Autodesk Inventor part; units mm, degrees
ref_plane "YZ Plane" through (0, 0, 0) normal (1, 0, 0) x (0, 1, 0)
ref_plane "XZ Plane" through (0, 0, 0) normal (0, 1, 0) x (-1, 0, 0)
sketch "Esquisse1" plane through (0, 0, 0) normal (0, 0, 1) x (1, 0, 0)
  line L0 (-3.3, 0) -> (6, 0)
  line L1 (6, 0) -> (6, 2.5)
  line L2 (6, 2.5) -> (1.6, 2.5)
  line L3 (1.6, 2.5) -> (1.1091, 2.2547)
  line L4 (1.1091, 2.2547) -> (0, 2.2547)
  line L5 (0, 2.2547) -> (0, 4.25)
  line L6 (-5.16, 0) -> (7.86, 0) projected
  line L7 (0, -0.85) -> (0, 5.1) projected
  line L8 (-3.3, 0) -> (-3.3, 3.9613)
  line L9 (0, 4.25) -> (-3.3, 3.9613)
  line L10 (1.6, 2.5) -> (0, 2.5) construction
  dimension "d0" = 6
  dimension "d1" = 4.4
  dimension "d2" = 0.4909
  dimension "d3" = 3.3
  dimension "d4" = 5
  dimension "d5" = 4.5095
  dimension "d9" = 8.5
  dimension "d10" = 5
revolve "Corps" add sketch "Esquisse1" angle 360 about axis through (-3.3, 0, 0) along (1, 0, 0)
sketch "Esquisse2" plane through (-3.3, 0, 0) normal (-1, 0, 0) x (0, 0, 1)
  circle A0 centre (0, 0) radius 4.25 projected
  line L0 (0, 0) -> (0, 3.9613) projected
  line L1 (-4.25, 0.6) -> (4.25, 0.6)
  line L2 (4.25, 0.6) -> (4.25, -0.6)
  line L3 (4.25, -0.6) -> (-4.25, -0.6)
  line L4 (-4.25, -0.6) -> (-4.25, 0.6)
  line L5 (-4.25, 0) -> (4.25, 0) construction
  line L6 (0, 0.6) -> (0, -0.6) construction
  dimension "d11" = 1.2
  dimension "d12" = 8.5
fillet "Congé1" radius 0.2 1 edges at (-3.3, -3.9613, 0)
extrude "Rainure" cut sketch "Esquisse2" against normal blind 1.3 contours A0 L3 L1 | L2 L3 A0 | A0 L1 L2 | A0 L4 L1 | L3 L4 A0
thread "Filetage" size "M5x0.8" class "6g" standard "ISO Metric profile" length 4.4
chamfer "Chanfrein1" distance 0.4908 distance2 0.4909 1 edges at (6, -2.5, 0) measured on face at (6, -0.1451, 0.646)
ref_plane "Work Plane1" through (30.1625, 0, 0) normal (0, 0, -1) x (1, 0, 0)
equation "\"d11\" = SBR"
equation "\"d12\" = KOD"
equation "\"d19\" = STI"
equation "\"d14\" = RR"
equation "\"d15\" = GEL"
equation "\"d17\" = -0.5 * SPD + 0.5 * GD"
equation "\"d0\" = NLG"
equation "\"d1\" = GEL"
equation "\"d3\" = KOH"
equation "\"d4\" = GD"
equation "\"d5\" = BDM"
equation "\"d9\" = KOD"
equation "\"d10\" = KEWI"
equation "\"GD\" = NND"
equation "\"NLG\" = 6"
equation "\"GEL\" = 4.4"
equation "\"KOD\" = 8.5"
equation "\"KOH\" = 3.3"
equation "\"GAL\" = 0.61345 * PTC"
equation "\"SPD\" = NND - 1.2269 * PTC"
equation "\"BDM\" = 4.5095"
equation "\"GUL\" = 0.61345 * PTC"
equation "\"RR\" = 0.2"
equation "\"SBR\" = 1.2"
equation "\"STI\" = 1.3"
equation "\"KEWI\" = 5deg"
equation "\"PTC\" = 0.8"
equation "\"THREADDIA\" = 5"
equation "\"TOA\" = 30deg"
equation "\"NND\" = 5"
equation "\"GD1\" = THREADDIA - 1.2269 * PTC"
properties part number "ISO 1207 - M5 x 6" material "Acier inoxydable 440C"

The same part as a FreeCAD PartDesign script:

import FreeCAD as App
import Part
import Sketcher
Q = App.Units.Quantity


def edges_at(feature, points):
    """Names of the edges that pass closest to the given points."""
    edges = feature.Shape.Edges
    near = lambda p: min(range(len(edges)), key=lambda i: edges[i].distToShape(Part.Vertex(*p))[0])
    return sorted({f"Edge{near(p) + 1}" for p in points})

doc = App.newDocument("Part")
params = doc.addObject("Spreadsheet::Sheet", "Params")
for row, (alias, value) in enumerate([
    ("sketch1_width", "4.4 mm"),
    ("sketch1_height", "2.5 mm"),
    ("revolution_angle", "360 deg"),
    ("fillet_radius", "0.2 mm"),
    ("sketch2_width", "1.2 mm"),
    ("sketch2_height", "8.5 mm"),
    ("pocket1_length", "1.3 mm"),
    ("chamfer_size", "0.4908 mm"),
    ("chamfer_size2", "0.4909 mm"),
], start=1):
    params.set(f"A{row}", alias)
    params.set(f"B{row}", "=" + value)
    params.setAlias(f"B{row}", alias)

body = doc.addObject("PartDesign::Body", "Body")

# Sketch on XY plane
sketch1 = body.newObject("Sketcher::SketchObject", "Sketch")
sketch1.AttachmentSupport = (doc.getObject("XY_Plane"), [""])
sketch1.MapMode = "FlatFace"
sketch1.addGeometry([
    Part.LineSegment(App.Vector(-3.3, 4, 0), App.Vector(-3.3, 0, 0)),  # 0
    Part.LineSegment(App.Vector(-3.3, 0, 0), App.Vector(6, 0, 0)),  # 1
    Part.LineSegment(App.Vector(6, 0, 0), App.Vector(6, 2.5, 0)),  # 2
    Part.LineSegment(App.Vector(6, 2.5, 0), App.Vector(1.6, 2.5, 0)),  # 3
    Part.LineSegment(App.Vector(1.6, 2.5, 0), App.Vector(1.1, 2.3, 0)),  # 4
    Part.LineSegment(App.Vector(1.1, 2.3, 0), App.Vector(0, 2.3, 0)),  # 5
    Part.LineSegment(App.Vector(0, 2.3, 0), App.Vector(0, 4.2, 0)),  # 6
    Part.LineSegment(App.Vector(0, 4.2, 0), App.Vector(-3.3, 4, 0)),  # 7
], False)
sketch1.addConstraint([
    Sketcher.Constraint("Coincident", 0, 2, 1, 1),
    Sketcher.Constraint("Coincident", 1, 2, 2, 1),
    Sketcher.Constraint("Coincident", 2, 2, 3, 1),
    Sketcher.Constraint("Coincident", 3, 2, 4, 1),
    Sketcher.Constraint("Coincident", 4, 2, 5, 1),
    Sketcher.Constraint("Coincident", 5, 2, 6, 1),
    Sketcher.Constraint("Coincident", 6, 2, 7, 1),
    Sketcher.Constraint("Coincident", 7, 2, 0, 1),
    Sketcher.Constraint("Vertical", 0),
    Sketcher.Constraint("Horizontal", 1),
    Sketcher.Constraint("Vertical", 2),
    Sketcher.Constraint("Horizontal", 3),
    Sketcher.Constraint("Horizontal", 5),
    Sketcher.Constraint("Vertical", 6),
    Sketcher.Constraint("PointOnObject", 0, 2, -1),
    Sketcher.Constraint("PointOnObject", 5, 2, -2),
    Sketcher.Constraint("DistanceX", 3, 2, 3, 1, Q("4.4 mm")),
    Sketcher.Constraint("DistanceX", -1, 1, 1, 2, Q("6 mm")),
    Sketcher.Constraint("DistanceX", 0, 2, -1, 1, Q("3.3 mm")),
    Sketcher.Constraint("Angle", 7, Q("-175.0002 deg")),
    Sketcher.Constraint("DistanceY", 2, 1, 2, 2, Q("2.5 mm")),
    Sketcher.Constraint("DistanceX", 4, 2, 3, 2, Q("0.491 mm")),
    Sketcher.Constraint("Angle", 4, Q("-153.449 deg")),
    Sketcher.Constraint("DistanceY", -1, 1, 6, 2, Q("4.25 mm")),
])
sketch1.setExpression("Constraints[16]", "Params.sketch1_width")
sketch1.setExpression("Constraints[20]", "Params.sketch1_height")
revolution = body.newObject("PartDesign::Revolution", "Revolution")
revolution.Profile = sketch1
revolution.ReferenceAxis = (sketch1, ["H_Axis"])
revolution.setExpression("Angle", "Params.revolution_angle")
doc.recompute()

fillet = body.newObject("PartDesign::Fillet", "Fillet")
fillet.Base = (revolution, edges_at(revolution, [(-3.3, -3.961, 0)]))
fillet.setExpression("Radius", "Params.fillet_radius")

# Sketch on YZ plane
sketch2 = body.newObject("Sketcher::SketchObject", "Sketch001")
sketch2.AttachmentSupport = (doc.getObject("YZ_Plane"), [""])
sketch2.MapMode = "FlatFace"
sketch2.AttachmentOffset = App.Placement(App.Vector(0, 0, -3.3), App.Rotation())
sketch2.addGeometry([
    Part.LineSegment(App.Vector(-0.6, 4.2, 0), App.Vector(0.6, 4.2, 0)),
    Part.LineSegment(App.Vector(0.6, 4.2, 0), App.Vector(0.6, -4.2, 0)),
    Part.LineSegment(App.Vector(0.6, -4.2, 0), App.Vector(-0.6, -4.2, 0)),
    Part.LineSegment(App.Vector(-0.6, -4.2, 0), App.Vector(-0.6, 4.2, 0)),
], False)
sketch2.addConstraint([
    Sketcher.Constraint("Coincident", 0, 2, 1, 1),
    Sketcher.Constraint("Coincident", 1, 2, 2, 1),
    Sketcher.Constraint("Coincident", 2, 2, 3, 1),
    Sketcher.Constraint("Coincident", 3, 2, 0, 1),
    Sketcher.Constraint("Horizontal", 0),
    Sketcher.Constraint("Vertical", 1),
    Sketcher.Constraint("Horizontal", 2),
    Sketcher.Constraint("Vertical", 3),
    Sketcher.Constraint("Symmetric", 0, 2, 2, 2, -1, 1),
    Sketcher.Constraint("DistanceX", 0, 1, 0, 2, Q("1.2 mm")),
    Sketcher.Constraint("DistanceY", 1, 2, 1, 1, Q("8.5 mm")),
])
sketch2.setExpression("Constraints[9]", "Params.sketch2_width")
sketch2.setExpression("Constraints[10]", "Params.sketch2_height")
pocket1 = body.newObject("PartDesign::Pocket", "Pocket")
pocket1.Profile = sketch2
pocket1.setExpression("Length", "Params.pocket1_length")
pocket1.Reversed = True
doc.recompute()

chamfer = body.newObject("PartDesign::Chamfer", "Chamfer")
chamfer.Base = (pocket1, edges_at(pocket1, [(6, -2.5, 0)]))
chamfer.ChamferType = "Two distances"
chamfer.setExpression("Size", "Params.chamfer_size")
chamfer.setExpression("Size2", "Params.chamfer_size2")

doc.recompute()
